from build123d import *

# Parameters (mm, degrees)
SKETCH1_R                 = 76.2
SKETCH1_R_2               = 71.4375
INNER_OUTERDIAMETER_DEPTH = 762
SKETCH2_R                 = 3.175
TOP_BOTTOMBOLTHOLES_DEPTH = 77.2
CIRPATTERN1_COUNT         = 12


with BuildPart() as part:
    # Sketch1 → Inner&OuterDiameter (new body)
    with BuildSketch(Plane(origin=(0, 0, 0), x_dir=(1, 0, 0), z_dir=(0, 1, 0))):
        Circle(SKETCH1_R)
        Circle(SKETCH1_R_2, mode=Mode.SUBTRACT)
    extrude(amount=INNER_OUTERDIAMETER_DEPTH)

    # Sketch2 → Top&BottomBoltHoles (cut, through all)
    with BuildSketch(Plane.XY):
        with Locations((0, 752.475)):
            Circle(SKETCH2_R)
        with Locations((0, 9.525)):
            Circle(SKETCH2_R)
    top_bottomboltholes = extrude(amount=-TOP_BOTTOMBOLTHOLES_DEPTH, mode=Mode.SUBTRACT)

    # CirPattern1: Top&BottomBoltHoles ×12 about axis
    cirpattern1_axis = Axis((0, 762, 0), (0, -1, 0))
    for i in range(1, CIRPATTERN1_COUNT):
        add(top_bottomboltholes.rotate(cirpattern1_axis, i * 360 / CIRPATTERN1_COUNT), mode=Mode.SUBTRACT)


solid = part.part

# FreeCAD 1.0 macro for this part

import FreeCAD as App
import Part
import Sketcher

V = App.Vector
Q = App.Units.Quantity

doc = App.newDocument("Part")
params = doc.addObject("Spreadsheet::Sheet", "Params")
for row, (alias, value) in enumerate([
    ("sketch1_diameter", "6 in"),
    ("sketch1_diameter2", "5.625 in"),
    ("pad1_length", "30 in"),
    ("sketch2_diameter", "0.25 in"),
], start=1):
    params.set(f"A{row}", alias)
    params.set(f"B{row}", "=" + value)
    params.setAlias(f"B{row}", alias)

body = doc.addObject("PartDesign::Body", "Body")

# Sketch on XZ plane
sketch1 = body.newObject("Sketcher::SketchObject", "Sketch")
sketch1.AttachmentSupport = (doc.getObject("XZ_Plane"), [""])
sketch1.MapMode = "FlatFace"
sketch1.addGeometry([
    Part.Circle(V(0, 0, 0), V(0, 0, 1), 76.2),
    Part.Circle(V(0, 0, 0), V(0, 0, 1), 71.4375),
], False)
sketch1.addConstraint([
    Sketcher.Constraint("Coincident", 0, 3, -1, 1),
    Sketcher.Constraint("Coincident", 1, 3, -1, 1),
    Sketcher.Constraint("Diameter", 0, Q("6 in")),
    Sketcher.Constraint("Diameter", 1, Q("5.625 in")),
])
sketch1.setExpression("Constraints[2]", "Params.sketch1_diameter")
sketch1.setExpression("Constraints[3]", "Params.sketch1_diameter2")
pad1 = body.newObject("PartDesign::Pad", "Pad")
pad1.Profile = sketch1
pad1.setExpression("Length", "Params.pad1_length")
pad1.Reversed = True

# Sketch on XY plane
sketch2 = body.newObject("Sketcher::SketchObject", "Sketch001")
sketch2.AttachmentSupport = (doc.getObject("XY_Plane"), [""])
sketch2.MapMode = "FlatFace"
sketch2.addGeometry([
    Part.Circle(V(0, 752.475, 0), V(0, 0, 1), 3.175),
    Part.Circle(V(0, 9.525, 0), V(0, 0, 1), 3.175),
], False)
sketch2.addConstraint([
    Sketcher.Constraint("Equal", 0, 1),
    Sketcher.Constraint("PointOnObject", 0, 3, -2),
    Sketcher.Constraint("PointOnObject", 1, 3, -2),
    Sketcher.Constraint("Diameter", 0, Q("0.25 in")),
    Sketcher.Constraint("DistanceY", 1, 3, 0, 3, Q("29.25 in")),
    Sketcher.Constraint("DistanceY", -1, 1, 0, 3, Q("29.625 in")),
])
sketch2.setExpression("Constraints[3]", "Params.sketch2_diameter")
pocket1 = body.newObject("PartDesign::Pocket", "Pocket")
pocket1.Profile = sketch2
pocket1.Type = "ThroughAll"
doc.recompute()

polarpattern = body.newObject("PartDesign::PolarPattern", "PolarPattern")
polarpattern.Originals = [pocket1]
polarpattern.Axis = (doc.getObject("Y_Axis"), [""])
polarpattern.Angle = 360
polarpattern.Occurrences = 12
body.Tip = polarpattern

doc.recompute()
